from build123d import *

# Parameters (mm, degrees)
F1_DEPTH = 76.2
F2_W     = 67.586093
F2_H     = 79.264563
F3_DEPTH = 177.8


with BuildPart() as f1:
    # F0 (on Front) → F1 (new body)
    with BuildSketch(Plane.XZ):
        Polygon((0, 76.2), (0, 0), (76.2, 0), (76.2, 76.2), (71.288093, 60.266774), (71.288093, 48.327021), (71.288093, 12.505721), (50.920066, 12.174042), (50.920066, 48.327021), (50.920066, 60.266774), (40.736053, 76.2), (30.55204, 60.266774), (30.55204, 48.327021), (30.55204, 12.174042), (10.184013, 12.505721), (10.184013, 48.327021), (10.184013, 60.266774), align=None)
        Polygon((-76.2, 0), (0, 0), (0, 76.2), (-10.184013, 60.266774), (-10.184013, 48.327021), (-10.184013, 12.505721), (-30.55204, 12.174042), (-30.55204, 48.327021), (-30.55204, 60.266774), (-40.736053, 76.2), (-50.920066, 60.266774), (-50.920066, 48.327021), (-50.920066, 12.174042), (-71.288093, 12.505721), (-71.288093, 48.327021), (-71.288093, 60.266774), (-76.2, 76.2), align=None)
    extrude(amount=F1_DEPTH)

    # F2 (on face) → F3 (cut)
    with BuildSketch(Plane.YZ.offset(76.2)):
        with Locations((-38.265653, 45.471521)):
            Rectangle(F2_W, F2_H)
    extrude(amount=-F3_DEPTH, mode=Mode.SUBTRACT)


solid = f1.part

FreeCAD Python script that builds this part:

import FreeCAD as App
import Part
import Sketcher

V = App.Vector
Q = App.Units.Quantity

doc = App.newDocument("Part")
body = doc.addObject("PartDesign::Body", "Body")

# Sketch on XZ plane
sketch1 = doc.addObject("Sketcher::SketchObject", "Sketch")
body.addObject(sketch1)
sketch1.AttachmentSupport = (doc.XZ_Plane, [""])
sketch1.MapMode = "FlatFace"
sketch1.addGeometry([
    Part.LineSegment(V(76.2, 0, 0), V(76.2, 76.2, 0)),  # 0
    Part.LineSegment(V(76.2, 76.2, 0), V(71.288093, 60.266774, 0)),  # 1
    Part.LineSegment(V(71.288093, 60.266774, 0), V(71.288093, 12.505721, 0)),  # 2
    Part.LineSegment(V(71.288093, 12.505721, 0), V(50.920066, 12.174042, 0)),  # 3
    Part.LineSegment(V(50.920066, 12.174042, 0), V(50.920066, 60.266774, 0)),  # 4
    Part.LineSegment(V(50.920066, 60.266774, 0), V(40.736053, 76.2, 0)),  # 5
    Part.LineSegment(V(40.736053, 76.2, 0), V(30.55204, 60.266774, 0)),  # 6
    Part.LineSegment(V(30.55204, 60.266774, 0), V(30.55204, 12.174042, 0)),  # 7
    Part.LineSegment(V(30.55204, 12.174042, 0), V(10.184013, 12.505721, 0)),  # 8
    Part.LineSegment(V(10.184013, 12.505721, 0), V(10.184013, 60.266774, 0)),  # 9
    Part.LineSegment(V(10.184013, 60.266774, 0), V(0, 76.2, 0)),  # 10
    Part.LineSegment(V(0, 76.2, 0), V(-10.184013, 60.266774, 0)),  # 11
    Part.LineSegment(V(-10.184013, 60.266774, 0), V(-10.184013, 12.505721, 0)),  # 12
    Part.LineSegment(V(-10.184013, 12.505721, 0), V(-30.55204, 12.174042, 0)),  # 13
    Part.LineSegment(V(-30.55204, 12.174042, 0), V(-30.55204, 60.266774, 0)),  # 14
    Part.LineSegment(V(-30.55204, 60.266774, 0), V(-40.736053, 76.2, 0)),  # 15
    Part.LineSegment(V(-40.736053, 76.2, 0), V(-50.920066, 60.266774, 0)),  # 16
    Part.LineSegment(V(-50.920066, 60.266774, 0), V(-50.920066, 12.174042, 0)),  # 17
    Part.LineSegment(V(-50.920066, 12.174042, 0), V(-71.288093, 12.505721, 0)),  # 18
    Part.LineSegment(V(-71.288093, 12.505721, 0), V(-71.288093, 60.266774, 0)),  # 19
    Part.LineSegment(V(-71.288093, 60.266774, 0), V(-76.2, 76.2, 0)),  # 20
    Part.LineSegment(V(-76.2, 76.2, 0), V(-76.2, 0, 0)),  # 21
    Part.LineSegment(V(-76.2, 0, 0), V(76.2, 0, 0)),  # 22
], False)
sketch1.addConstraint([
    Sketcher.Constraint("Coincident", 0, 2, 1, 1),
    Sketcher.Constraint("Coincident", 1, 2, 2, 1),
    Sketcher.Constraint("Coincident", 2, 2, 3, 1),
    Sketcher.Constraint("Coincident", 3, 2, 4, 1),
    Sketcher.Constraint("Coincident", 4, 2, 5, 1),
    Sketcher.Constraint("Coincident", 5, 2, 6, 1),
    Sketcher.Constraint("Coincident", 6, 2, 7, 1),
    Sketcher.Constraint("Coincident", 7, 2, 8, 1),
    Sketcher.Constraint("Coincident", 8, 2, 9, 1),
    Sketcher.Constraint("Coincident", 9, 2, 10, 1),
    Sketcher.Constraint("Coincident", 10, 2, 11, 1),
    Sketcher.Constraint("Coincident", 11, 2, 12, 1),
    Sketcher.Constraint("Coincident", 12, 2, 13, 1),
    Sketcher.Constraint("Coincident", 13, 2, 14, 1),
    Sketcher.Constraint("Coincident", 14, 2, 15, 1),
    Sketcher.Constraint("Coincident", 15, 2, 16, 1),
    Sketcher.Constraint("Coincident", 16, 2, 17, 1),
    Sketcher.Constraint("Coincident", 17, 2, 18, 1),
    Sketcher.Constraint("Coincident", 18, 2, 19, 1),
    Sketcher.Constraint("Coincident", 19, 2, 20, 1),
    Sketcher.Constraint("Coincident", 20, 2, 21, 1),
    Sketcher.Constraint("Coincident", 21, 2, 22, 1),
    Sketcher.Constraint("Coincident", 22, 2, 0, 1),
    Sketcher.Constraint("Vertical", 0),
    Sketcher.Constraint("Vertical", 2),
    Sketcher.Constraint("Vertical", 4),
    Sketcher.Constraint("Vertical", 7),
    Sketcher.Constraint("Vertical", 9),
    Sketcher.Constraint("Vertical", 12),
    Sketcher.Constraint("Vertical", 14),
    Sketcher.Constraint("Vertical", 17),
    Sketcher.Constraint("Vertical", 19),
    Sketcher.Constraint("Vertical", 21),
    Sketcher.Constraint("Horizontal", 22),
    Sketcher.Constraint("Symmetric", 21, 2, 22, 2, -1, 1),
    Sketcher.Constraint("Symmetric", 9, 2, 11, 2, -2),
    Sketcher.Constraint("Symmetric", 7, 2, 13, 2, -2),
    Sketcher.Constraint("Symmetric", 5, 2, 15, 2, -2),
    Sketcher.Constraint("Symmetric", 4, 2, 16, 2, -2),
    Sketcher.Constraint("Symmetric", 2, 2, 18, 2, -2),
    Sketcher.Constraint("PointOnObject", 10, 2, -2),
    Sketcher.Constraint("Parallel", 5, 10),
    Sketcher.Constraint("Parallel", 6, 11),
    Sketcher.Constraint("Parallel", 3, 13),
    Sketcher.Constraint("Parallel", 10, 15),
    Sketcher.Constraint("Parallel", 8, 18),
    Sketcher.Constraint("Horizontal", 1, 2, 4, 2),
    Sketcher.Constraint("Horizontal", 0, 2, 5, 2),
    Sketcher.Constraint("Horizontal", 4, 2, 6, 2),
    Sketcher.Constraint("Horizontal", 3, 2, 7, 2),
    Sketcher.Constraint("Horizontal", 2, 2, 8, 2),
    Sketcher.Constraint("Horizontal", 6, 2, 9, 2),
    Sketcher.Constraint("Horizontal", 5, 2, 10, 2),
    Sketcher.Constraint("Horizontal", 8, 2, 12, 2),
    Sketcher.Constraint("Horizontal", 16, 2, 19, 2),
    Sketcher.Constraint("Horizontal", 15, 2, 20, 2),
    Sketcher.Constraint("DistanceX", 22, 1, 22, 2, Q("6 in")),
    Sketcher.Constraint("DistanceY", 0, 1, 0, 2, Q("3 in")),
    Sketcher.Constraint("DistanceY", 4, 1, 4, 2, 48.092732),
    Sketcher.Constraint("DistanceY", 2, 2, 2, 1, 47.761053),
    Sketcher.Constraint("DistanceY", -1, 1, 2, 2, 12.505721),
    Sketcher.Constraint("DistanceX", -1, 1, 6, 2, 30.55204),
    Sketcher.Constraint("DistanceX", 12, 2, 3, 2, 61.104079),
])
pad1 = doc.addObject("PartDesign::Pad", "Pad")
body.addObject(pad1)
pad1.Profile = sketch1
pad1.Length = Q("3 in")

# Sketch on YZ plane
sketch2 = doc.addObject("Sketcher::SketchObject", "Sketch001")
body.addObject(sketch2)
sketch2.AttachmentSupport = (doc.YZ_Plane, [""])
sketch2.MapMode = "FlatFace"
sketch2.AttachmentOffset = App.Placement(V(0, 0, 3 * 25.4), App.Rotation())
sketch2.addGeometry([
    Part.LineSegment(V(-72.0587, 85.103803, 0), V(-72.0587, 5.839239, 0)),
    Part.LineSegment(V(-72.0587, 5.839239, 0), V(-4.472607, 5.839239, 0)),
    Part.LineSegment(V(-4.472607, 5.839239, 0), V(-4.472607, 85.103803, 0)),
    Part.LineSegment(V(-4.472607, 85.103803, 0), V(-72.0587, 85.103803, 0)),
], False)
sketch2.addConstraint([
    Sketcher.Constraint("Coincident", 0, 2, 1, 1),
    Sketcher.Constraint("Coincident", 1, 2, 2, 1),
    Sketcher.Constraint("Coincident", 2, 2, 3, 1),
    Sketcher.Constraint("Coincident", 3, 2, 0, 1),
    Sketcher.Constraint("Vertical", 0),
    Sketcher.Constraint("Horizontal", 1),
    Sketcher.Constraint("Vertical", 2),
    Sketcher.Constraint("Horizontal", 3),
    Sketcher.Constraint("DistanceX", 0, 2, -1, 1, 72.0587),
    Sketcher.Constraint("DistanceX", 1, 1, 1, 2, 67.586093),
    Sketcher.Constraint("DistanceY", 0, 2, 0, 1, 79.264563),
    Sketcher.Constraint("DistanceY", -1, 1, 0, 2, 5.839239),
])
pocket1 = doc.addObject("PartDesign::Pocket", "Pocket")
body.addObject(pocket1)
pocket1.Profile = sketch2
pocket1.Length = Q("7 in")

doc.recompute()
